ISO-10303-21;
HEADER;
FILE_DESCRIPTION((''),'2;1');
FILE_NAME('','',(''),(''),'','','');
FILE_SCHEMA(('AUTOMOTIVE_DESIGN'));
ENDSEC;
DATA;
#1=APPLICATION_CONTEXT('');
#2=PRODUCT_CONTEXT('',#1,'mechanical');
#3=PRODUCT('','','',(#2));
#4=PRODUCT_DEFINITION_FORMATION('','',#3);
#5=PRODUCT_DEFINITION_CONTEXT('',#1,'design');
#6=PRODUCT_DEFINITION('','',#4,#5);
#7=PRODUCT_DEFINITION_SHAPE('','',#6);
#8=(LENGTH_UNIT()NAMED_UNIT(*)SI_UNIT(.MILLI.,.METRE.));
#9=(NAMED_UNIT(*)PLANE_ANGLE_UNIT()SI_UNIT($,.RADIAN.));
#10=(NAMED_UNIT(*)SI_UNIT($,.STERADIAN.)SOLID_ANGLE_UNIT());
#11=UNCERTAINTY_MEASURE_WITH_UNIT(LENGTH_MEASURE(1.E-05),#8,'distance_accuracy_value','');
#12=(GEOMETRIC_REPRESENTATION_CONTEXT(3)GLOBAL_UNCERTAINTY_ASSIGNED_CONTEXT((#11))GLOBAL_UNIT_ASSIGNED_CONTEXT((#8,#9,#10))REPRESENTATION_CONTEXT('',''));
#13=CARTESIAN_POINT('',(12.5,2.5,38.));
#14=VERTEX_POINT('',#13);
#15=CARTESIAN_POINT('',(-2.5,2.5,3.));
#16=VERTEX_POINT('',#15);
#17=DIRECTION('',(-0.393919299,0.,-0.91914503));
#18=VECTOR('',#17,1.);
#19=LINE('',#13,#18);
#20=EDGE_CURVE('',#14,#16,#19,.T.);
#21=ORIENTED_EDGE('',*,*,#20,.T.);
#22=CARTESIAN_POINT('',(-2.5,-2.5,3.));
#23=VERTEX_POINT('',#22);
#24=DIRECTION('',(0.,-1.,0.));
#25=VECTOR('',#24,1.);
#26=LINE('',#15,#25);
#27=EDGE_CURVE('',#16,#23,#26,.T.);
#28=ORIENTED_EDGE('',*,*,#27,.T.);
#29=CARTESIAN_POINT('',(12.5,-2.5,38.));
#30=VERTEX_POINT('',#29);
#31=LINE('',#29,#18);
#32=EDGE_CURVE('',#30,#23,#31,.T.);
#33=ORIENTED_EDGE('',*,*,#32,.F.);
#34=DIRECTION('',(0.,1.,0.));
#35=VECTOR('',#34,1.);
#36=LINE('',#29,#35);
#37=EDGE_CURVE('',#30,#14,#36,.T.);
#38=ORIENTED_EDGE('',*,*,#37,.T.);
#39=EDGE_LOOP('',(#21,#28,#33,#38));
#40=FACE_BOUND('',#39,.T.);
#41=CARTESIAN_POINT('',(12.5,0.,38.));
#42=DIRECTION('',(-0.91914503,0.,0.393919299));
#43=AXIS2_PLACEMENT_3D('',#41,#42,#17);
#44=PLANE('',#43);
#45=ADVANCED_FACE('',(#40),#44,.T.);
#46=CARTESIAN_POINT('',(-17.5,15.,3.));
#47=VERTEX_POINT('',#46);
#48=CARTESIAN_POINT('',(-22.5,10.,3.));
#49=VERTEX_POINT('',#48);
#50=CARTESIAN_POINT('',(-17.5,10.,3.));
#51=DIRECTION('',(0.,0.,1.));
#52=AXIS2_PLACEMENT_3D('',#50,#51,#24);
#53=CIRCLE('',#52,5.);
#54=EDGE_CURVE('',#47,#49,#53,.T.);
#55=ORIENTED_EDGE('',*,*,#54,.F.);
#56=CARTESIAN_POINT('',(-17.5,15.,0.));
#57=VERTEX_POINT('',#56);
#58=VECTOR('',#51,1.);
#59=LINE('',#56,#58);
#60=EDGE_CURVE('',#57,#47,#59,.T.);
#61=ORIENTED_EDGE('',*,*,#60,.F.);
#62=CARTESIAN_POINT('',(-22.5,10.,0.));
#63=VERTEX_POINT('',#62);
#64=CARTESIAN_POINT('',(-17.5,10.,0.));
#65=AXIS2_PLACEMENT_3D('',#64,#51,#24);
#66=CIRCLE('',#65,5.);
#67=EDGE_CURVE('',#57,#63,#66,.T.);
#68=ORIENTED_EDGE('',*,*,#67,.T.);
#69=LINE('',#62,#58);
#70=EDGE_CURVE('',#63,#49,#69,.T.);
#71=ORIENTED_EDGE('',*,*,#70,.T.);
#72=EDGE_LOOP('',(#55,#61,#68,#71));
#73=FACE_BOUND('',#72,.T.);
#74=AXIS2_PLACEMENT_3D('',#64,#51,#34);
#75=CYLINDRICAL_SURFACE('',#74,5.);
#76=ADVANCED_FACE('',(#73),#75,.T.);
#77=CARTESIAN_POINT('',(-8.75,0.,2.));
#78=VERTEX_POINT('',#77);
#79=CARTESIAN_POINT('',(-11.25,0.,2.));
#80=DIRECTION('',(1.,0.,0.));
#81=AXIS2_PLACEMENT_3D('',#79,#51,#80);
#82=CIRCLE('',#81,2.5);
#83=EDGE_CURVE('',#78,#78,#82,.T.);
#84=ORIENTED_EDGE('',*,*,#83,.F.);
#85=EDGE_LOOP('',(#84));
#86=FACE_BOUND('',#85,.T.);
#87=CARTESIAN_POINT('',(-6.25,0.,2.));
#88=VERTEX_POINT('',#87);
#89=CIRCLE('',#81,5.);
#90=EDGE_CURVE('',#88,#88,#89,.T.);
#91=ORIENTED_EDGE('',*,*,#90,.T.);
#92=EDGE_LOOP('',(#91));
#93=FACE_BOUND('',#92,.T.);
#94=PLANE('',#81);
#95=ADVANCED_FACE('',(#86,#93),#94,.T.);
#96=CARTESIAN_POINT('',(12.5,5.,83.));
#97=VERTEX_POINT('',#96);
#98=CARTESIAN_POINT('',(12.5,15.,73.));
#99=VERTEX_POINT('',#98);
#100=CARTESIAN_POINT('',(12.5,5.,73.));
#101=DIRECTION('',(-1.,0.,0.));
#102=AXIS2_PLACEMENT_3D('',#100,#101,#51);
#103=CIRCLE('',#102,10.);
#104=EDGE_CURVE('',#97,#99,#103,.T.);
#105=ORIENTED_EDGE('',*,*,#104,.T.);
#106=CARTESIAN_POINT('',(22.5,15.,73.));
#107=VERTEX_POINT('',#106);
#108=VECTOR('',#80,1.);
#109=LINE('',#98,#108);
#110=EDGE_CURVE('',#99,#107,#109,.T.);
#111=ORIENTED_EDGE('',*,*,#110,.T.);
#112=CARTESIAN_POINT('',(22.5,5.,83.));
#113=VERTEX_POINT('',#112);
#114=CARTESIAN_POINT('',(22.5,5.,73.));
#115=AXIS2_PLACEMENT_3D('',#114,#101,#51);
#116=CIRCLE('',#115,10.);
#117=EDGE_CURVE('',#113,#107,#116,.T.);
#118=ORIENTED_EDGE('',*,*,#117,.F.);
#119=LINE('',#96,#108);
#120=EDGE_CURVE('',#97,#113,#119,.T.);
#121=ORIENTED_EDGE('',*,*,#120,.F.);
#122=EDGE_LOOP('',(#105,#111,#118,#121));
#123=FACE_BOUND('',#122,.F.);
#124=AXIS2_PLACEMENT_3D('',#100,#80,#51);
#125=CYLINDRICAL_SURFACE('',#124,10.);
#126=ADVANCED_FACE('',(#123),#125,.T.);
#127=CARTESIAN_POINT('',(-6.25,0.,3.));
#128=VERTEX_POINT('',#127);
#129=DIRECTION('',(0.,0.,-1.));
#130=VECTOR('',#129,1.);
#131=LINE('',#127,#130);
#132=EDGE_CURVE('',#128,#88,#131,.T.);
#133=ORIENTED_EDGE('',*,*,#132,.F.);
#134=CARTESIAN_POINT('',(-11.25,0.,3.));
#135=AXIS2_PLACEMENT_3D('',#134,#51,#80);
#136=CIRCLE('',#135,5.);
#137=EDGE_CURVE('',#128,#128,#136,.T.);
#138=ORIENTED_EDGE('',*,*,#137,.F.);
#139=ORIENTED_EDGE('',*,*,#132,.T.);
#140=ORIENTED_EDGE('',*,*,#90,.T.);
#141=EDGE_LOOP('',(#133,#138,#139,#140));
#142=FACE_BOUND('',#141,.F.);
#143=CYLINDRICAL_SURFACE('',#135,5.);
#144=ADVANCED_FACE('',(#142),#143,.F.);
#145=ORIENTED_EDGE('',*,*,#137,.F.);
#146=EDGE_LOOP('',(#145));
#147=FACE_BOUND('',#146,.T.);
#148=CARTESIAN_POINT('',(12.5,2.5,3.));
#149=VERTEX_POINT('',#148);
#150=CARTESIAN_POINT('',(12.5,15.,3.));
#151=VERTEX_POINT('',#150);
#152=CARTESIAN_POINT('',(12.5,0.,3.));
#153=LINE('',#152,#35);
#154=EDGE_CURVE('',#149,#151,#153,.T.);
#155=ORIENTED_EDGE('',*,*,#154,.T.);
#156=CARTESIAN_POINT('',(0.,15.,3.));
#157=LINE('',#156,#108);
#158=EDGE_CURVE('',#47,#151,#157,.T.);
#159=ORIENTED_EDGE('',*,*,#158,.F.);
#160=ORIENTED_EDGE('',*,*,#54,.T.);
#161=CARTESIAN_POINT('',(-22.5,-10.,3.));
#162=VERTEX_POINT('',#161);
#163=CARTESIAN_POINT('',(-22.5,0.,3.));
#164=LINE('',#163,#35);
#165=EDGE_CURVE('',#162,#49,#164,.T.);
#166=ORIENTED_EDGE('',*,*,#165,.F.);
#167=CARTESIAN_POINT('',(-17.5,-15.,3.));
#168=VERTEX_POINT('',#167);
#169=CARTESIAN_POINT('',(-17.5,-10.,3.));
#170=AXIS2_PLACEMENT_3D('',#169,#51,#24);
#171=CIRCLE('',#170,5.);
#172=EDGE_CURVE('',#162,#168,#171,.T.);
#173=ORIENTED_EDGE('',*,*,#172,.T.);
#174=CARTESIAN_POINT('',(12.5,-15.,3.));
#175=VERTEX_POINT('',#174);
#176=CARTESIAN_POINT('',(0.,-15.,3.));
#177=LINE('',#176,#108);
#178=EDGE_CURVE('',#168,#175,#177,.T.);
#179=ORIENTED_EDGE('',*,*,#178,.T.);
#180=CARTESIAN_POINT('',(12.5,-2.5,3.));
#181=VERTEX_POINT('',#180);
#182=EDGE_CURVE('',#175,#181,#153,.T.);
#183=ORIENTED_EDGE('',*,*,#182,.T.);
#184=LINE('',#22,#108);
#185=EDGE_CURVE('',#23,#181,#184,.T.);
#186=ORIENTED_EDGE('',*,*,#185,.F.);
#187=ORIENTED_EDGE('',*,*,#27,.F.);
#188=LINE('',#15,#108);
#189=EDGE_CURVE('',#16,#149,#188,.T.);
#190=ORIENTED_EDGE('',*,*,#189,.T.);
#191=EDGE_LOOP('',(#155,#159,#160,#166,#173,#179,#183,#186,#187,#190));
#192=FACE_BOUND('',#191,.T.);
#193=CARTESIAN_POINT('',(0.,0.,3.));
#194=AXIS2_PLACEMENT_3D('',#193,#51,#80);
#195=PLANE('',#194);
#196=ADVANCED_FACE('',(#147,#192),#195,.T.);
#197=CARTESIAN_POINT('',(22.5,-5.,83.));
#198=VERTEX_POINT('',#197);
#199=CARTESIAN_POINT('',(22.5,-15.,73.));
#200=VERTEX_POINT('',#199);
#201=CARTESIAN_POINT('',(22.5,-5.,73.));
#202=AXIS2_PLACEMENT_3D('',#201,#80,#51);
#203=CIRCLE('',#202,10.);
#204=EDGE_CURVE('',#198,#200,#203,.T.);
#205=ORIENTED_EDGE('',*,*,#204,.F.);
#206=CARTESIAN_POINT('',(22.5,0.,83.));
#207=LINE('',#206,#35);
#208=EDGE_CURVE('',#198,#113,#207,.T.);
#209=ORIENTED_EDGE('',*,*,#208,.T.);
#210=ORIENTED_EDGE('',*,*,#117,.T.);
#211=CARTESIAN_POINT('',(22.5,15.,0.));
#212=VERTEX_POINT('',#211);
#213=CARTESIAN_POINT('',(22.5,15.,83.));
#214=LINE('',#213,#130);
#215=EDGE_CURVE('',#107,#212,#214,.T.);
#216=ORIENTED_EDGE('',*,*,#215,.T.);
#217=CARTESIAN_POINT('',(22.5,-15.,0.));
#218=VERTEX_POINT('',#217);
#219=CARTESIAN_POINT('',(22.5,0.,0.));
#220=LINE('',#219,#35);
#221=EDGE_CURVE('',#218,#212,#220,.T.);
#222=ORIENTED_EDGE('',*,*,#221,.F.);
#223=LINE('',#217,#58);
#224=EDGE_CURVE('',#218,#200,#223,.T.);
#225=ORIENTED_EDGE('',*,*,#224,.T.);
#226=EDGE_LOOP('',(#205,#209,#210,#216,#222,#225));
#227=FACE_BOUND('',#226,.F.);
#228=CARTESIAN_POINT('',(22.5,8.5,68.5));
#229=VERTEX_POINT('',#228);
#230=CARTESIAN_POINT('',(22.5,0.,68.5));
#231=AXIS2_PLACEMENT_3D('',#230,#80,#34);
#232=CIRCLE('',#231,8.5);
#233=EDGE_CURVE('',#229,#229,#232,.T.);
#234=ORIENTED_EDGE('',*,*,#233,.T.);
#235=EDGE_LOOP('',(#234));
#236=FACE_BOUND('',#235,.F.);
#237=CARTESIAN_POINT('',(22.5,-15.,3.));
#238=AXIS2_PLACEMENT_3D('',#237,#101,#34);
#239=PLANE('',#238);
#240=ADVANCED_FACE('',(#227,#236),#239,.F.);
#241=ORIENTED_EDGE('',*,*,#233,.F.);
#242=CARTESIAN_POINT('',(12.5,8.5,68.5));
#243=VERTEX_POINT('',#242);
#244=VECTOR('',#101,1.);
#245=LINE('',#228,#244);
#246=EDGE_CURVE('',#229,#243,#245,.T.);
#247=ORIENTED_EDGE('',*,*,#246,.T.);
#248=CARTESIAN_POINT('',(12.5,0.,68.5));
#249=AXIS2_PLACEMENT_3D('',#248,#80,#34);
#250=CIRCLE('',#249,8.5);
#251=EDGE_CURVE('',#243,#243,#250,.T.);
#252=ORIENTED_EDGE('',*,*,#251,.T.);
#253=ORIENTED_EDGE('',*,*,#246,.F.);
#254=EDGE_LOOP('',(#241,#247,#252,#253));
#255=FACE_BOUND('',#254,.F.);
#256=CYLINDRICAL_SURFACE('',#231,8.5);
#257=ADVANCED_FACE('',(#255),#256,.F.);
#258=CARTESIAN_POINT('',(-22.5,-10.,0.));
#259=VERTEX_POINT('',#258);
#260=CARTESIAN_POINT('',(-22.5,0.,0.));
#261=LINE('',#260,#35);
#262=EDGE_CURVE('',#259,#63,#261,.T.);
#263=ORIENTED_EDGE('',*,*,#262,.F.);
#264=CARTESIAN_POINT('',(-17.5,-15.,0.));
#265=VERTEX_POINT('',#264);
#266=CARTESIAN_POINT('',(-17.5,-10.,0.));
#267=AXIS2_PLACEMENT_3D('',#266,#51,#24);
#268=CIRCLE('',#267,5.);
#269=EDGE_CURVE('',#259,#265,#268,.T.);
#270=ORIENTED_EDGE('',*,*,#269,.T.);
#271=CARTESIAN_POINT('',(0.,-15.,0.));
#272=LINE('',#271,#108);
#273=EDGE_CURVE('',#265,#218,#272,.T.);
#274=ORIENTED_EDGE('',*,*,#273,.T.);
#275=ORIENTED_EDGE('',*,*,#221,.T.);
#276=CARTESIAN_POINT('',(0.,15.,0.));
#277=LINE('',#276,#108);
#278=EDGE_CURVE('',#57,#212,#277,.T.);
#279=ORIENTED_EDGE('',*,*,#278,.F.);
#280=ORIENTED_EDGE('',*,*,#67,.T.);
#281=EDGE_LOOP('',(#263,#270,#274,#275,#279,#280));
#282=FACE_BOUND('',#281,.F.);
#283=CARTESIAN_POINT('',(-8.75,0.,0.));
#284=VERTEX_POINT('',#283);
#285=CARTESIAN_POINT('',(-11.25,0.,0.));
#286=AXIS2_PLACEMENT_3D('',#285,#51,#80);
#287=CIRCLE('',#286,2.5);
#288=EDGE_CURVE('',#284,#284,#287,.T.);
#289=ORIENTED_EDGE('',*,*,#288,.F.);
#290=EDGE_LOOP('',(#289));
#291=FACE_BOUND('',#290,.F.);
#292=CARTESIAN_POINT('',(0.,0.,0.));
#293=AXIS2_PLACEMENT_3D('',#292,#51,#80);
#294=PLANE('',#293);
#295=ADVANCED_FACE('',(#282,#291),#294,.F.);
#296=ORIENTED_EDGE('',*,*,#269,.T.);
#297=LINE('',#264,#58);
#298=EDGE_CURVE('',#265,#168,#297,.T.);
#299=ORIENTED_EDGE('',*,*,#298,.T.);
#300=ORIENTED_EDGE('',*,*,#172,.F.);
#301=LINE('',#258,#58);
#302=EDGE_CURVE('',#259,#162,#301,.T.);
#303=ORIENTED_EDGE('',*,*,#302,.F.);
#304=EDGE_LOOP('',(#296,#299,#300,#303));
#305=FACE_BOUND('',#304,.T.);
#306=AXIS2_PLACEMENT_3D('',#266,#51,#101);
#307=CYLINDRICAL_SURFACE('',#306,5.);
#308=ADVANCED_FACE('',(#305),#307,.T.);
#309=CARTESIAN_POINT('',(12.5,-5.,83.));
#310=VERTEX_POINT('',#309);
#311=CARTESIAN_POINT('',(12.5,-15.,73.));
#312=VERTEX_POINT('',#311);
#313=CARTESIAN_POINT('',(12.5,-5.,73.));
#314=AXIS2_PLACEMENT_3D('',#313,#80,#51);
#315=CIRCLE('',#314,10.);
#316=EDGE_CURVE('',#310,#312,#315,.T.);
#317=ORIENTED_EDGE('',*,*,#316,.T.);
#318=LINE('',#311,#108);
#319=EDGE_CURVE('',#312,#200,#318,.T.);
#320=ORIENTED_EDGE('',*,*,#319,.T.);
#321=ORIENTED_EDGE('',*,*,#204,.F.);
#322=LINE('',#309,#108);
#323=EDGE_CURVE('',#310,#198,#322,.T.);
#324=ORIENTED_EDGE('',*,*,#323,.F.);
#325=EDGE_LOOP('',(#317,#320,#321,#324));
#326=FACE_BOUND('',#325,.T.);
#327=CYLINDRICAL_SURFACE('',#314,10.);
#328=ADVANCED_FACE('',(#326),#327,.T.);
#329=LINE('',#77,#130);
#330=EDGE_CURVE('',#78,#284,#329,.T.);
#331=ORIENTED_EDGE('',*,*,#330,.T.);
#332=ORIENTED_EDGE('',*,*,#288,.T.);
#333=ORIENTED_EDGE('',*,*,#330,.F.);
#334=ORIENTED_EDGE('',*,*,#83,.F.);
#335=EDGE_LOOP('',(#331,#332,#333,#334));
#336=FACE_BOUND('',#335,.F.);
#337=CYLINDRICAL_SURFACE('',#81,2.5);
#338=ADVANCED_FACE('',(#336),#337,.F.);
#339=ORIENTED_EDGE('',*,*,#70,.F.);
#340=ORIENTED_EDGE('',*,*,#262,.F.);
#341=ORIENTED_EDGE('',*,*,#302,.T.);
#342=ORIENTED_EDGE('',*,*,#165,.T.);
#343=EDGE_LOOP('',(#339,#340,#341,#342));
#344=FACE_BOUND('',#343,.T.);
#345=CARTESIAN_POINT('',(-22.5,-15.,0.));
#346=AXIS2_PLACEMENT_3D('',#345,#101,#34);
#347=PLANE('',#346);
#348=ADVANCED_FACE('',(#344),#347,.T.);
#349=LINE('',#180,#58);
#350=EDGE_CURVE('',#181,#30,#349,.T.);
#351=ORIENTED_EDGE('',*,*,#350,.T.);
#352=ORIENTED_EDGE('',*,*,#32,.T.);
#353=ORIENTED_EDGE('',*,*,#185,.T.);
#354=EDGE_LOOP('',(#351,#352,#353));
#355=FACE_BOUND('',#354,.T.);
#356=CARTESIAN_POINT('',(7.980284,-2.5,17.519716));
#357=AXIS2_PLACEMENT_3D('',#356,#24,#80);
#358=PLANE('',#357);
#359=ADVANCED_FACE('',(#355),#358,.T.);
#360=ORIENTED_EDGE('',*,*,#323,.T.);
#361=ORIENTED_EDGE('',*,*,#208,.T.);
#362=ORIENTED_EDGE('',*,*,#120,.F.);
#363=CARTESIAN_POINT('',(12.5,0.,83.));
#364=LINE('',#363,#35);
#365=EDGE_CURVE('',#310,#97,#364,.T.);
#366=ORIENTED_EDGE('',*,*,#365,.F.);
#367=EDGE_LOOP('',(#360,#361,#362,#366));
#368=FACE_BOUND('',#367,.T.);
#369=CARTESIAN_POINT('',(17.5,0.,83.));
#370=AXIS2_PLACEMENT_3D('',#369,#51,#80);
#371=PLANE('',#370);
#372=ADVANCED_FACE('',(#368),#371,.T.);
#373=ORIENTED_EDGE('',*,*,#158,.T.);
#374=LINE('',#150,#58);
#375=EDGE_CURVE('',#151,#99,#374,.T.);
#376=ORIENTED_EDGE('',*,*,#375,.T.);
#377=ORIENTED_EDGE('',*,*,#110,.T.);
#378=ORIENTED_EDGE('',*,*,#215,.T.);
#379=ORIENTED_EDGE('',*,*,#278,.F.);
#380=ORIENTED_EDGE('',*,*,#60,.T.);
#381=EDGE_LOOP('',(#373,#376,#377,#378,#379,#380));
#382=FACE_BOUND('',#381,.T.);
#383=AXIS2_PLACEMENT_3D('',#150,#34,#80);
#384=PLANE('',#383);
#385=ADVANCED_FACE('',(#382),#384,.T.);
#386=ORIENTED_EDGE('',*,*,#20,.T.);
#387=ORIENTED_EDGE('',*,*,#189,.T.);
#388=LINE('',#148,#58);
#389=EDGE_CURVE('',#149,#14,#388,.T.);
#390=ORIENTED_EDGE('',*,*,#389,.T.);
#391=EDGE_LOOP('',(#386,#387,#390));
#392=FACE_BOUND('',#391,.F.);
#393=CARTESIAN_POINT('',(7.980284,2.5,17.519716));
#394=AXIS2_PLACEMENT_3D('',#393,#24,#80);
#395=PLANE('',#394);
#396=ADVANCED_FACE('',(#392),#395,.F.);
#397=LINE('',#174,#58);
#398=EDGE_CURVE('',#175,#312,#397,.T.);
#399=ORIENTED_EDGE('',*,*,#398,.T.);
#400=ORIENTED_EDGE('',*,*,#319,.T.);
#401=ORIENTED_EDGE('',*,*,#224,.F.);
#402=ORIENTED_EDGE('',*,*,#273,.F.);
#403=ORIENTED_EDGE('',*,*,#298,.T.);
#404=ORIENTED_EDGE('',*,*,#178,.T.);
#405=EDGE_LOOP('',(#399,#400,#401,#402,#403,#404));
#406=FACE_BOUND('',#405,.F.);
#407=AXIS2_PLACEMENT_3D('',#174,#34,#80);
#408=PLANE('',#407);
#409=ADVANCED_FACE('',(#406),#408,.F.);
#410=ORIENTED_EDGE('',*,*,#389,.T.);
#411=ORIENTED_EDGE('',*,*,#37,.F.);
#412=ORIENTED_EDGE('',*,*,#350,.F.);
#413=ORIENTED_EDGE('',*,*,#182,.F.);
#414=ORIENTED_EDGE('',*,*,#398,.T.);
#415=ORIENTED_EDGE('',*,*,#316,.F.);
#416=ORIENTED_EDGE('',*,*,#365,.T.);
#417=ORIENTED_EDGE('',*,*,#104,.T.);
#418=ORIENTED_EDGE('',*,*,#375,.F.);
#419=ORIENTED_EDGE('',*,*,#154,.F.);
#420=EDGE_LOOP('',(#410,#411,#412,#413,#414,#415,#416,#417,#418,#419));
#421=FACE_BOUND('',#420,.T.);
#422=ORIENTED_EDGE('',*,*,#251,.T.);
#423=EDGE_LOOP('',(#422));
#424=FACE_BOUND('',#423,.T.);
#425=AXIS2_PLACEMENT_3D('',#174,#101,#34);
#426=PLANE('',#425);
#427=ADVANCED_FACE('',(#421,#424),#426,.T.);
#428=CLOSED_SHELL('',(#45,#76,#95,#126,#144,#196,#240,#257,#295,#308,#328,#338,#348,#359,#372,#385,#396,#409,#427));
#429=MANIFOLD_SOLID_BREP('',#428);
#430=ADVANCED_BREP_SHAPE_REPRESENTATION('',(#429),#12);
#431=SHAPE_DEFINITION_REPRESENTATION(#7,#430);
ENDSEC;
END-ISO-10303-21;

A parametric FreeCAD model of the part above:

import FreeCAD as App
import Part
import Sketcher
from FreeCAD import Vector
Q = App.Units.Quantity


def edges_at(feature, points):
    """Names of the edges that pass closest to the given points."""
    edges = feature.Shape.Edges
    near = lambda p: min(range(len(edges)), key=lambda i: edges[i].distToShape(Part.Vertex(*p))[0])
    return sorted({f"Edge{near(p) + 1}" for p in points})


def add_polygon(sketch, points):
    """Adds a closed chain of lines whose ends are joined by coincident constraints."""
    first, n = sketch.GeometryCount, len(points)
    for a, b in zip(points, points[1:] + points[:1]):
        sketch.addGeometry(Part.LineSegment(App.Vector(*a, 0), App.Vector(*b, 0)), False)
    for i in range(n):
        sketch.addConstraint(Sketcher.Constraint("Coincident", first + i, 2, first + (i + 1) % n, 1))

doc = App.newDocument("Part")
body = doc.addObject("PartDesign::Body", "Body")

sketch1 = doc.addObject("Sketcher::SketchObject", "Sketch")
body.addObject(sketch1)
sketch1.AttachmentSupport = (doc.XY_Plane, [""])
sketch1.MapMode = "FlatFace"
add_polygon(sketch1, [(-22, 15), (-22, -15), (22, -15), (22, 15)])
sketch1.addConstraint(Sketcher.Constraint("Vertical", 0))
sketch1.addConstraint(Sketcher.Constraint("Horizontal", 1))
sketch1.addConstraint(Sketcher.Constraint("Vertical", 2))
sketch1.addConstraint(Sketcher.Constraint("Horizontal", 3))
sketch1.addConstraint(Sketcher.Constraint("Symmetric", 0, 2, 2, 2, -1, 1))
sketch1.addConstraint(Sketcher.Constraint("DistanceX", 1, 1, 1, 2, Q("45 mm")))
sketch1.addConstraint(Sketcher.Constraint("DistanceY", 0, 2, 0, 1, Q("30 mm")))
pad1 = doc.addObject("PartDesign::Pad", "Pad")
body.addObject(pad1)
pad1.Profile = sketch1
pad1.Length = 3

sketch2 = doc.addObject("Sketcher::SketchObject", "Sketch001")
body.addObject(sketch2)
sketch2.AttachmentSupport = (doc.XY_Plane, [""])
sketch2.MapMode = "FlatFace"
sketch2.AttachmentOffset = App.Placement(Vector(0, 0, 3), App.Rotation())
sketch2.addGeometry(Part.Circle(Vector(-11, 0, 0), Vector(0, 0, 1), 5), False)
sketch2.addConstraint(Sketcher.Constraint("PointOnObject", 0, 3, -1))
sketch2.addConstraint(Sketcher.Constraint("Diameter", 0, Q("10 mm")))
sketch2.addConstraint(Sketcher.Constraint("DistanceX", 0, 3, -1, 1, Q("11.25 mm")))
pocket1 = doc.addObject("PartDesign::Pocket", "Pocket")
body.addObject(pocket1)
pocket1.Profile = sketch2
pocket1.Length = 1

sketch3 = doc.addObject("Sketcher::SketchObject", "Sketch002")
body.addObject(sketch3)
sketch3.AttachmentSupport = (doc.XY_Plane, [""])
sketch3.MapMode = "FlatFace"
sketch3.AttachmentOffset = App.Placement(Vector(0, 0, 2), App.Rotation())
sketch3.addGeometry(Part.Circle(Vector(-11.2, 0, 0), Vector(0, 0, 1), 2.5), False)
sketch3.addConstraint(Sketcher.Constraint("PointOnObject", 0, 3, -1))
sketch3.addConstraint(Sketcher.Constraint("Diameter", 0, Q("5 mm")))
sketch3.addConstraint(Sketcher.Constraint("DistanceX", 0, 3, -1, 1, Q("11.25 mm")))
pocket2 = doc.addObject("PartDesign::Pocket", "Pocket001")
body.addObject(pocket2)
pocket2.Profile = sketch3
pocket2.Type = "ThroughAll"

sketch4 = doc.addObject("Sketcher::SketchObject", "Sketch003")
body.addObject(sketch4)
sketch4.AttachmentSupport = (doc.XY_Plane, [""])
sketch4.MapMode = "FlatFace"
sketch4.AttachmentOffset = App.Placement(Vector(0, 0, 3), App.Rotation())
add_polygon(sketch4, [(12, 15), (12, -15), (22, -15), (22, 15)])
sketch4.addConstraint(Sketcher.Constraint("Vertical", 0))
sketch4.addConstraint(Sketcher.Constraint("Horizontal", 1))
sketch4.addConstraint(Sketcher.Constraint("Vertical", 2))
sketch4.addConstraint(Sketcher.Constraint("Horizontal", 3))
sketch4.addConstraint(Sketcher.Constraint("DistanceX", 1, 1, 1, 2, Q("10 mm")))
sketch4.addConstraint(Sketcher.Constraint("DistanceY", 0, 2, 0, 1, Q("30 mm")))
sketch4.addConstraint(Sketcher.Constraint("DistanceY", 0, 2, -1, 1, Q("15 mm")))
sketch4.addConstraint(Sketcher.Constraint("DistanceX", -1, 1, 0, 2, Q("12.5 mm")))
pad2 = doc.addObject("PartDesign::Pad", "Pad001")
body.addObject(pad2)
pad2.Profile = sketch4
pad2.Length = 80

sketch5 = doc.addObject("Sketcher::SketchObject", "Sketch004")
body.addObject(sketch5)
sketch5.AttachmentSupport = (doc.XZ_Plane, [""])
sketch5.MapMode = "FlatFace"
add_polygon(sketch5, [(12, 38), (-2, 3), (12, 3)])
sketch5.addConstraint(Sketcher.Constraint("Horizontal", 1))
sketch5.addConstraint(Sketcher.Constraint("Vertical", 2))
sketch5.addConstraint(Sketcher.Constraint("DistanceX", 1, 1, 1, 2, Q("15 mm")))
sketch5.addConstraint(Sketcher.Constraint("DistanceY", 2, 1, 2, 2, Q("35 mm")))
sketch5.addConstraint(Sketcher.Constraint("DistanceY", -1, 1, 0, 2, Q("3 mm")))
sketch5.addConstraint(Sketcher.Constraint("DistanceX", 0, 2, -1, 1, Q("2.5 mm")))
pad3 = doc.addObject("PartDesign::Pad", "Pad002")
body.addObject(pad3)
pad3.Profile = sketch5
pad3.Length = 5
pad3.Midplane = True

sketch6 = doc.addObject("Sketcher::SketchObject", "Sketch005")
body.addObject(sketch6)
sketch6.AttachmentSupport = (doc.YZ_Plane, [""])
sketch6.MapMode = "FlatFace"
sketch6.AttachmentOffset = App.Placement(Vector(0, 0, 22.5), App.Rotation())
sketch6.addGeometry(Part.Circle(Vector(0, 68, 0), Vector(0, 0, 1), 8), False)
sketch6.addConstraint(Sketcher.Constraint("PointOnObject", 0, 3, -2))
sketch6.addConstraint(Sketcher.Constraint("Diameter", 0, Q("17 mm")))
sketch6.addConstraint(Sketcher.Constraint("DistanceY", -1, 1, 0, 3, Q("68.5 mm")))
pocket3 = doc.addObject("PartDesign::Pocket", "Pocket002")
body.addObject(pocket3)
pocket3.Profile = sketch6
pocket3.Type = "ThroughAll"
doc.recompute()

fillet = doc.addObject("PartDesign::Fillet", "Fillet")
body.addObject(fillet)
fillet.Base = (pocket3, edges_at(pocket3, [(17.5, 15, 83)]))
fillet.Radius = 10
doc.recompute()

fillet2 = doc.addObject("PartDesign::Fillet", "Fillet001")
body.addObject(fillet2)
fillet2.Base = (fillet, edges_at(fillet, [(17.5, -15, 83)]))
fillet2.Radius = 10
doc.recompute()

fillet3 = doc.addObject("PartDesign::Fillet", "Fillet002")
body.addObject(fillet3)
fillet3.Base = (fillet2, edges_at(fillet2, [(-22.5, 15, 1.5)]))
fillet3.Radius = 5
doc.recompute()

fillet4 = doc.addObject("PartDesign::Fillet", "Fillet003")
body.addObject(fillet4)
fillet4.Base = (fillet3, edges_at(fillet3, [(-22.5, -15, 1.5)]))
fillet4.Radius = 5

doc.recompute()
